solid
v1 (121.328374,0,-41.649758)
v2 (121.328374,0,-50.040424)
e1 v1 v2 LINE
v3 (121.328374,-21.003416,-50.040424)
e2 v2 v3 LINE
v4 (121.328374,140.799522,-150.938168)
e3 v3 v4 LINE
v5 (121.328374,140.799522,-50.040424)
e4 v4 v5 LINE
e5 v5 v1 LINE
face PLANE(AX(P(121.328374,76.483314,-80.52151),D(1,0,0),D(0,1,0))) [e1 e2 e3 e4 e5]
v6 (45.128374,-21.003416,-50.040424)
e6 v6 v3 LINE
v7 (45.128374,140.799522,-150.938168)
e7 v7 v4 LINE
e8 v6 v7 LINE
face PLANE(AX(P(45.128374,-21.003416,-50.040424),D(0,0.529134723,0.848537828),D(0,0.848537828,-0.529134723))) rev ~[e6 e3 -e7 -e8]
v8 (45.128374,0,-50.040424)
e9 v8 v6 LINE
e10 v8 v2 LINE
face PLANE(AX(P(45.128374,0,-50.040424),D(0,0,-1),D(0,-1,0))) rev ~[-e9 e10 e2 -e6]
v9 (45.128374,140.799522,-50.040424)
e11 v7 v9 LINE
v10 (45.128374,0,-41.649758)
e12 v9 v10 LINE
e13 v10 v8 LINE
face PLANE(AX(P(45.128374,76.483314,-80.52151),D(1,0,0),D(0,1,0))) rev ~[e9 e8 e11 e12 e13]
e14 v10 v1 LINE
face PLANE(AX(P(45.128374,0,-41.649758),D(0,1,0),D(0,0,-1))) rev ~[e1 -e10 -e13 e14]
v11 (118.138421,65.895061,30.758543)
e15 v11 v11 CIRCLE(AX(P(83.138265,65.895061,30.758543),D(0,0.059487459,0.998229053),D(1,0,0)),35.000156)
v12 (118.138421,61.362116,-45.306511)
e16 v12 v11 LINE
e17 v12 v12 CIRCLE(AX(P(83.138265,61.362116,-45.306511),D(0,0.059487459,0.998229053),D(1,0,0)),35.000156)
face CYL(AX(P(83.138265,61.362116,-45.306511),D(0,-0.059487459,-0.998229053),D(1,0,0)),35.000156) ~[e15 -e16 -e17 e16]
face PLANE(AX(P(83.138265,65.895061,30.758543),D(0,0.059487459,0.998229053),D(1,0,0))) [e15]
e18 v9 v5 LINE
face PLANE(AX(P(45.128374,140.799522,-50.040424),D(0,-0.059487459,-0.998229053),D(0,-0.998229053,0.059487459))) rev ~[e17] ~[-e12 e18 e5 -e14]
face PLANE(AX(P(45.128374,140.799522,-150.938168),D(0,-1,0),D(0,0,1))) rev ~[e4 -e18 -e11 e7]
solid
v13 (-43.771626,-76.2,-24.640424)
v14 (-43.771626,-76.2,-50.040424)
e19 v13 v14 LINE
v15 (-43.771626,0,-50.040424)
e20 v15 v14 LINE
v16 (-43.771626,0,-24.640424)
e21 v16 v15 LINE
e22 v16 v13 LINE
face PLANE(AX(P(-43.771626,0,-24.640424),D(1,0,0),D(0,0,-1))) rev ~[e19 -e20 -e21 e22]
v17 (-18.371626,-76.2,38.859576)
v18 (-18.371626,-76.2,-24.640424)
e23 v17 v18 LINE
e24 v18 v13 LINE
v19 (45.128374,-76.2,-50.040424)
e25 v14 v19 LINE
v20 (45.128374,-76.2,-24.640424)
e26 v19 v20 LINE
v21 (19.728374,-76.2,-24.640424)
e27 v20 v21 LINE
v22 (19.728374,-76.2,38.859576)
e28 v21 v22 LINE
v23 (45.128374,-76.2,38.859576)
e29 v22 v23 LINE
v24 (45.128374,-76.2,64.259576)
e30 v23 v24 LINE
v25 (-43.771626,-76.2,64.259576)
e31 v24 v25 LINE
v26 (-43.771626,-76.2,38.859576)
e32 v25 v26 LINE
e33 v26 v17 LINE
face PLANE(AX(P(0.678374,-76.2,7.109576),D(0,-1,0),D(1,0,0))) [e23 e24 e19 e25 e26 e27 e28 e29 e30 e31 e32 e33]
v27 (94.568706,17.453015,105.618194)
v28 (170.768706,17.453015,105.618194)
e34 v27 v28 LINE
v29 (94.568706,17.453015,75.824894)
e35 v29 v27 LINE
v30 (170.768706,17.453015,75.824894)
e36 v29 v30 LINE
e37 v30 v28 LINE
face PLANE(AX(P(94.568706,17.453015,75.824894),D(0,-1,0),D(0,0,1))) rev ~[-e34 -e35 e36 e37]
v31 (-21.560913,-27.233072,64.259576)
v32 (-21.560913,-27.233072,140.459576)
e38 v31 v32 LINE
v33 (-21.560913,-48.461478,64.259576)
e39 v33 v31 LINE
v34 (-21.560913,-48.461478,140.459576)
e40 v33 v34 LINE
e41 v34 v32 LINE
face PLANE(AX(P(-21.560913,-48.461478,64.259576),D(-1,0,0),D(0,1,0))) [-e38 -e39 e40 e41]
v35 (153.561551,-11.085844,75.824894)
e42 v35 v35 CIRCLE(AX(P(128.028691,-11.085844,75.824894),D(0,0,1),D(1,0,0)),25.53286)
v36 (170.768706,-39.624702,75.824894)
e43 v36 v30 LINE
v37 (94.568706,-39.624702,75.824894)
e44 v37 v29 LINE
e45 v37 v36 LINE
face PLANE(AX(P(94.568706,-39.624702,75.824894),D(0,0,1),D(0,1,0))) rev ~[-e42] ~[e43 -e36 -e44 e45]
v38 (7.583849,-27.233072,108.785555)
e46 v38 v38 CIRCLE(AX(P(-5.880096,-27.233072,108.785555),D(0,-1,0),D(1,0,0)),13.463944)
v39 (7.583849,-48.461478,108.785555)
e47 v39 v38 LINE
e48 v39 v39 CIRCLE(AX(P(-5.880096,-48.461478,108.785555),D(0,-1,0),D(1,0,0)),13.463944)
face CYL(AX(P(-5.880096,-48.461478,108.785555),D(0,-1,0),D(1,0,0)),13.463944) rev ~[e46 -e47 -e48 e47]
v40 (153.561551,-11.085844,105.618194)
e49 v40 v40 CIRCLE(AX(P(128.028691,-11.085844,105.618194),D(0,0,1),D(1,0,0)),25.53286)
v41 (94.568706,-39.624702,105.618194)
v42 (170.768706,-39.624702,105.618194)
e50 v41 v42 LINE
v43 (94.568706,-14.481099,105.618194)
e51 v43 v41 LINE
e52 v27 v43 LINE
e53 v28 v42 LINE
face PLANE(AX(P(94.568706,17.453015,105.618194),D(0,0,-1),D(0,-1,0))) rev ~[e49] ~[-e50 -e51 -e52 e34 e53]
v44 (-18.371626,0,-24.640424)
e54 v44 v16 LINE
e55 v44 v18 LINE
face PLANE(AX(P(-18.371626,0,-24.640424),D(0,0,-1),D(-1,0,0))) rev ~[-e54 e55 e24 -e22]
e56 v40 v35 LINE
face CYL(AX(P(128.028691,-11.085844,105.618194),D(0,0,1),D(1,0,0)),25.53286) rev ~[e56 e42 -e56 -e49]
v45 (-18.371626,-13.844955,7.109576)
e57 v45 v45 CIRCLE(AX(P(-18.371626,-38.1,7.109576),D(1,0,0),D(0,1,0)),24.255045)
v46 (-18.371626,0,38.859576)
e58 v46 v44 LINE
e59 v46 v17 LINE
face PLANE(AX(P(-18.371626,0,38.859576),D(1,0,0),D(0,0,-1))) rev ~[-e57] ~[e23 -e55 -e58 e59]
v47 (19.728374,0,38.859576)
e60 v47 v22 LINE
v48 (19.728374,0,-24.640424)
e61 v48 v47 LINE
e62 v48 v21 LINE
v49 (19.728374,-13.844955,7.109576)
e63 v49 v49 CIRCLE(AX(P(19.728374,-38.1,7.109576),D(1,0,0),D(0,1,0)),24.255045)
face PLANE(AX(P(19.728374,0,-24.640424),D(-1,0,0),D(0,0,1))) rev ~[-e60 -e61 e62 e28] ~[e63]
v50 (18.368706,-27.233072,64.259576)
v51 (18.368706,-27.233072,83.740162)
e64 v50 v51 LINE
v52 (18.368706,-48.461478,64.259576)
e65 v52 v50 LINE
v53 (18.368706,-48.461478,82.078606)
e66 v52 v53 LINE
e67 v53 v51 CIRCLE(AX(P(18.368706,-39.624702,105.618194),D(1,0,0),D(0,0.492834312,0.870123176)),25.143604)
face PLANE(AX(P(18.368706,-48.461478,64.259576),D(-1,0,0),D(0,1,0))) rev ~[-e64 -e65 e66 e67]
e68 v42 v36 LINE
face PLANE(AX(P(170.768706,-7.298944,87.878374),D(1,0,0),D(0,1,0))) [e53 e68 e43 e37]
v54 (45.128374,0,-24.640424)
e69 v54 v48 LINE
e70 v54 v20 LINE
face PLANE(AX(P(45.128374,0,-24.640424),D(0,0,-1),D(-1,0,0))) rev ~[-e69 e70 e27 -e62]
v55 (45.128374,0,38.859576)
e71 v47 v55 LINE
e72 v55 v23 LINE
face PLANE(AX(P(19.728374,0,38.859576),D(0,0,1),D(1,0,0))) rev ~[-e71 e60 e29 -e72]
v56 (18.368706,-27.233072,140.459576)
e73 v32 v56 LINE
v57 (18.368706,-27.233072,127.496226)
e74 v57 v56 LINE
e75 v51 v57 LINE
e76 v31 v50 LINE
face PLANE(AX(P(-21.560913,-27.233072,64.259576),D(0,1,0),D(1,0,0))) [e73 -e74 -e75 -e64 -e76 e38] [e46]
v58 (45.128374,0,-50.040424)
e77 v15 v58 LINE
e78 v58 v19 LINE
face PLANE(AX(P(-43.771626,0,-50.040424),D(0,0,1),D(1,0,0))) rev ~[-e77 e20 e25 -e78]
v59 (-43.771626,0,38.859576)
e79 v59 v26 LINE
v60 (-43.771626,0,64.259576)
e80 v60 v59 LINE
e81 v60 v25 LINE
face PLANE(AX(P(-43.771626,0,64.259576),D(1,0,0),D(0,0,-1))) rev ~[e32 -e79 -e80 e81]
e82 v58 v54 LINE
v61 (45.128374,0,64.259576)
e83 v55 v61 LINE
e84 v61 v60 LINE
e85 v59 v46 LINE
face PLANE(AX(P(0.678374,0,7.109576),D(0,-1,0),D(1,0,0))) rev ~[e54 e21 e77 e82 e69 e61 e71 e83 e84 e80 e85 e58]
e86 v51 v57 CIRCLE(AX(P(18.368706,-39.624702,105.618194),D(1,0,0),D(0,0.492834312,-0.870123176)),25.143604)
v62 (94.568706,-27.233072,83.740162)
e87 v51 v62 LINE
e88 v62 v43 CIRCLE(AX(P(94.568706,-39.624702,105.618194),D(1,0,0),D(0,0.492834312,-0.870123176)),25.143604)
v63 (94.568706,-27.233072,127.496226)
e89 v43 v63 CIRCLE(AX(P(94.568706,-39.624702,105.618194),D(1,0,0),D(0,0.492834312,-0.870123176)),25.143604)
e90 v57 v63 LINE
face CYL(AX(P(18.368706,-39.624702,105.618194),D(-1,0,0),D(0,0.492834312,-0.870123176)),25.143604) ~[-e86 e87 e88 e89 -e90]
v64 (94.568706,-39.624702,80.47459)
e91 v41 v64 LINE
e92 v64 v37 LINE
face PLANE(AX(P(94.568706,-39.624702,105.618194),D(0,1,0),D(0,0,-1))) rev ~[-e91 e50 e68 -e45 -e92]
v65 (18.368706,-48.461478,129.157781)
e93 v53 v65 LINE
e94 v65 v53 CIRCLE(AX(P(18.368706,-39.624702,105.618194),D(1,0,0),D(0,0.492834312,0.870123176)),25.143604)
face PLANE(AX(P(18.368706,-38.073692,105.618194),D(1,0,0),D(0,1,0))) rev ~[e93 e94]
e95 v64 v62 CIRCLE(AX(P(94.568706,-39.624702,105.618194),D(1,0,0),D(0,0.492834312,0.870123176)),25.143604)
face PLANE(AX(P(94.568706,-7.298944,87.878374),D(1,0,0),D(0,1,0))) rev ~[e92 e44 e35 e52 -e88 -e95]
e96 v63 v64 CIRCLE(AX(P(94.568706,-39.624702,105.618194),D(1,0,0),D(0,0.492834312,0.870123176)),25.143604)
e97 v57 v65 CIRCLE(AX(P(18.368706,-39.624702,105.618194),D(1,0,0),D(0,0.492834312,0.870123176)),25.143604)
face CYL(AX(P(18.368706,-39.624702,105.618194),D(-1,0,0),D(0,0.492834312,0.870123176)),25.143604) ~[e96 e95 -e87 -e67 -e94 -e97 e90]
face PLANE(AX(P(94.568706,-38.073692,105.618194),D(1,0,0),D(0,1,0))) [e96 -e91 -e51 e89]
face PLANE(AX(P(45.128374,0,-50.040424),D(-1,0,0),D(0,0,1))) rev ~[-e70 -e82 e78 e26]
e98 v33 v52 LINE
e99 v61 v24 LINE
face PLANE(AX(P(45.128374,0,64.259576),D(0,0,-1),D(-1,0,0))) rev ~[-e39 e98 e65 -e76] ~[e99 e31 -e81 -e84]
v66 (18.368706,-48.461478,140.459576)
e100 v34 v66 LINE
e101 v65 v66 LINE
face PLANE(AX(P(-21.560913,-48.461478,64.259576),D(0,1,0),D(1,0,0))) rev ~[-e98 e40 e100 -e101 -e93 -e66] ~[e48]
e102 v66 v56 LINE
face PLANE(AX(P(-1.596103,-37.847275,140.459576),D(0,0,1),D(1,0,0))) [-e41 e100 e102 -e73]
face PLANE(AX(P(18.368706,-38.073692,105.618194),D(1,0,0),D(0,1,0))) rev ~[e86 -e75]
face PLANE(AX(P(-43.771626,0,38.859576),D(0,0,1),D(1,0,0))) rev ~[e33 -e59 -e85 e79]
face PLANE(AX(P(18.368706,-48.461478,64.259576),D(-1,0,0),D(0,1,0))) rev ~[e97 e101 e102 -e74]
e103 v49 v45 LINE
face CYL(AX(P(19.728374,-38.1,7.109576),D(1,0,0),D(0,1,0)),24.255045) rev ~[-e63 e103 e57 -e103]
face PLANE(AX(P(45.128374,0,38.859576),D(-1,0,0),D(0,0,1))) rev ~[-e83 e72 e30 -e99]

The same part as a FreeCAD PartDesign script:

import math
import FreeCAD as App
import Part
import Sketcher
from FreeCAD import Vector
Q = App.Units.Quantity


def add_polygon(sketch, points):
    """Adds a closed chain of lines whose ends are joined by coincident constraints."""
    first, n = sketch.GeometryCount, len(points)
    for a, b in zip(points, points[1:] + points[:1]):
        sketch.addGeometry(Part.LineSegment(App.Vector(*a, 0), App.Vector(*b, 0)), False)
    for i in range(n):
        sketch.addConstraint(Sketcher.Constraint("Coincident", first + i, 2, first + (i + 1) % n, 1))

doc = App.newDocument("Part")
body = doc.addObject("PartDesign::Body", "Body")

# Sketch on XZ plane
sketch1 = body.newObject("Sketcher::SketchObject", "Sketch")
sketch1.AttachmentSupport = (doc.getObject("XZ_Plane"), [""])
sketch1.MapMode = "FlatFace"
add_polygon(sketch1, [(-43.771626, -24.640424), (-43.771626, -50.040424), (45.128374, -50.040424), (45.128374, -24.640424), (19.728374, -24.640424), (19.728374, 38.859576), (45.128374, 38.859576), (45.128374, 64.259576), (-43.771626, 64.259576), (-43.771626, 38.859576), (-18.371626, 38.859576), (-18.371626, -24.640424)])  # lines 0-11
sketch1.addConstraint([
    Sketcher.Constraint("Vertical", 0),
    Sketcher.Constraint("Horizontal", 1),
    Sketcher.Constraint("Vertical", 2),
    Sketcher.Constraint("Horizontal", 3),
    Sketcher.Constraint("Vertical", 4),
    Sketcher.Constraint("Horizontal", 5),
    Sketcher.Constraint("Vertical", 6),
    Sketcher.Constraint("Horizontal", 7),
    Sketcher.Constraint("Vertical", 8),
    Sketcher.Constraint("Horizontal", 9),
    Sketcher.Constraint("Vertical", 10),
    Sketcher.Constraint("Horizontal", 11),
    Sketcher.Constraint("Horizontal", 5, 2, 8, 2),
    Sketcher.Constraint("Horizontal", 3, 2, 10, 2),
    Sketcher.Constraint("Vertical", 2, 2, 5, 2),
    Sketcher.Constraint("Vertical", 0, 2, 7, 2),
    Sketcher.Constraint("Equal", 5, 9),
    Sketcher.Constraint("Equal", 11, 0),
    Sketcher.Constraint("Equal", 2, 6),
    Sketcher.Constraint("DistanceX", 3, 2, 3, 1, Q("1 in")),
    Sketcher.Constraint("DistanceX", 1, 1, 1, 2, Q("3.5 in")),
    Sketcher.Constraint("DistanceY", 4, 1, 4, 2, Q("2.5 in")),
    Sketcher.Constraint("DistanceX", 0, 2, -1, 1, 43.771626),
    Sketcher.Constraint("DistanceY", 0, 2, -1, 1, 50.040424),
])
pad1 = body.newObject("PartDesign::Pad", "Pad")
pad1.Profile = sketch1
pad1.Length = Q("3 in")

# Sketch on YZ plane
sketch2 = body.newObject("Sketcher::SketchObject", "Sketch001")
sketch2.AttachmentSupport = (doc.getObject("YZ_Plane"), [""])
sketch2.MapMode = "FlatFace"
sketch2.AttachmentOffset = App.Placement(Vector(0, 0, 19.728374), App.Rotation())
sketch2.addGeometry(Part.Circle(Vector(-38.1, 7.109576, 0), Vector(0, 0, 1), 24.255045), False)
sketch2.addConstraint([
    Sketcher.Constraint("DistanceX", 0, 3, -1, 1, Q("1.5 in")),
    Sketcher.Constraint("Diameter", 0, 48.510089),
    Sketcher.Constraint("DistanceY", -1, 1, 0, 3, 7.109576),
])
pocket1 = body.newObject("PartDesign::Pocket", "Pocket")
pocket1.Profile = sketch2
pocket1.Type = "ThroughAll"

# Sketch on XY plane
sketch3 = body.newObject("Sketcher::SketchObject", "Sketch002")
sketch3.AttachmentSupport = (doc.getObject("XY_Plane"), [""])
sketch3.MapMode = "FlatFace"
sketch3.AttachmentOffset = App.Placement(Vector(0, 0, 64.259576), App.Rotation())
add_polygon(sketch3, [(-21.560913, -27.233072), (-21.560913, -48.461478), (18.368706, -48.461478), (18.368706, -27.233072)])  # lines 0-3
sketch3.addConstraint([
    Sketcher.Constraint("Vertical", 0),
    Sketcher.Constraint("Horizontal", 1),
    Sketcher.Constraint("Vertical", 2),
    Sketcher.Constraint("Horizontal", 3),
    Sketcher.Constraint("DistanceX", 1, 1, 1, 2, 39.929619),
    Sketcher.Constraint("DistanceY", 0, 2, 0, 1, 21.228407),
    Sketcher.Constraint("DistanceY", 0, 2, -1, 1, 48.461478),
    Sketcher.Constraint("DistanceX", 0, 2, -1, 1, 21.560913),
])
pad2 = body.newObject("PartDesign::Pad", "Pad001")
pad2.Profile = sketch3
pad2.Length = Q("3 in")

# Sketch on XZ plane
sketch4 = body.newObject("Sketcher::SketchObject", "Sketch003")
sketch4.AttachmentSupport = (doc.getObject("XZ_Plane"), [""])
sketch4.MapMode = "FlatFace"
sketch4.AttachmentOffset = App.Placement(Vector(0, 0, 48.461478), App.Rotation())
sketch4.addGeometry(Part.Circle(Vector(-5.880096, 108.785555, 0), Vector(0, 0, 1), 13.463944), False)
sketch4.addConstraint([
    Sketcher.Constraint("Diameter", 0, 26.927888),
    Sketcher.Constraint("DistanceX", 0, 3, -1, 1, Q("0.2314998 in")),
    Sketcher.Constraint("DistanceY", -1, 1, 0, 3, 108.785555),
])
pocket2 = body.newObject("PartDesign::Pocket", "Pocket001")
pocket2.Profile = sketch4
pocket2.Type = "ThroughAll"

# Sketch on YZ plane
sketch5 = body.newObject("Sketcher::SketchObject", "Sketch004")
sketch5.AttachmentSupport = (doc.getObject("YZ_Plane"), [""])
sketch5.MapMode = "FlatFace"
sketch5.AttachmentOffset = App.Placement(Vector(0, 0, 18.368706), App.Rotation())
sketch5.addGeometry([
    Part.ArcOfCircle(Part.Circle(Vector(-39.624702, 105.618194, 0), Vector(0, 0, 1), 25.143604), math.radians(60.472956), math.radians(299.527044)),
    Part.ArcOfCircle(Part.Circle(Vector(-39.624702, 105.618194, 0), Vector(0, 0, 1), 25.143604), math.radians(-60.472956), math.radians(60.472956)),
], False)
sketch5.addConstraint([
    Sketcher.Constraint("Tangent", 0, 1, 1, 2),
    Sketcher.Constraint("Coincident", 1, 1, 0, 2),
    Sketcher.Constraint("Vertical", 0, 1, 1, 1),
    Sketcher.Constraint("Radius", 0, 25.143604),
    Sketcher.Constraint("DistanceX", 0, 1, -1, 1, 27.233072),
    Sketcher.Constraint("DistanceY", -1, 1, 1, 1, 83.740162),
    Sketcher.Constraint("DistanceX", 1, 3, 0, 1, 12.391631),
])
pad3 = body.newObject("PartDesign::Pad", "Pad002")
pad3.Profile = sketch5
pad3.Length = Q("3 in")

# Sketch on YZ plane
sketch6 = body.newObject("Sketcher::SketchObject", "Sketch005")
sketch6.AttachmentSupport = (doc.getObject("YZ_Plane"), [""])
sketch6.MapMode = "FlatFace"
sketch6.AttachmentOffset = App.Placement(Vector(0, 0, 94.568706), App.Rotation())
add_polygon(sketch6, [(17.453015, 105.618194), (-39.624702, 105.618194), (-39.624702, 75.824894), (17.453015, 75.824894)])  # lines 0-3
sketch6.addConstraint([
    Sketcher.Constraint("Horizontal", 0),
    Sketcher.Constraint("Vertical", 1),
    Sketcher.Constraint("Horizontal", 2),
    Sketcher.Constraint("Vertical", 3),
    Sketcher.Constraint("DistanceY", 1, 2, 1, 1, 29.7933),
    Sketcher.Constraint("DistanceX", 0, 2, 0, 1, 57.077717),
    Sketcher.Constraint("DistanceX", 0, 2, -1, 1, 39.624702),
    Sketcher.Constraint("DistanceY", -1, 1, 0, 2, 105.618194),
])
pad4 = body.newObject("PartDesign::Pad", "Pad003")
pad4.Profile = sketch6
pad4.Length = Q("3 in")

# Sketch on XY plane
sketch7 = body.newObject("Sketcher::SketchObject", "Sketch006")
sketch7.AttachmentSupport = (doc.getObject("XY_Plane"), [""])
sketch7.MapMode = "FlatFace"
sketch7.AttachmentOffset = App.Placement(Vector(0, 0, 105.618194), App.Rotation())
sketch7.addGeometry(Part.Circle(Vector(128.028691, -11.085844, 0), Vector(0, 0, 1), 25.53286), False)
sketch7.addConstraint([
    Sketcher.Constraint("Diameter", 0, 51.06572),
    Sketcher.Constraint("DistanceX", -1, 1, 0, 3, 128.028691),
    Sketcher.Constraint("DistanceY", 0, 3, -1, 1, 11.085844),
])
pocket3 = body.newObject("PartDesign::Pocket", "Pocket002")
pocket3.Profile = sketch7
pocket3.Type = "ThroughAll"
body2 = doc.addObject("PartDesign::Body", "Body001")

# Sketch on YZ plane
sketch8 = body2.newObject("Sketcher::SketchObject", "Sketch007")
sketch8.AttachmentSupport = (doc.getObject("YZ_Plane001"), [""])
sketch8.MapMode = "FlatFace"
sketch8.AttachmentOffset = App.Placement(Vector(0, 0, 45.128374), App.Rotation())
add_polygon(sketch8, [(0, -50.040424), (-21.003416, -50.040424), (140.799522, -150.938168), (140.799522, -50.040424), (0, -41.649758)])  # lines 0-4
sketch8.addConstraint([
    Sketcher.Constraint("Horizontal", 0),
    Sketcher.Constraint("Vertical", 2),
    Sketcher.Constraint("Vertical", 4),
    Sketcher.Constraint("PointOnObject", 3, 2, -2),
    Sketcher.Constraint("Horizontal", 0, 2, 2, 2),
    Sketcher.Constraint("DistanceX", 0, 2, 0, 1, 21.003416),
    Sketcher.Constraint("DistanceY", 2, 1, 2, 2, 100.897745),
    Sketcher.Constraint("DistanceY", 4, 2, 4, 1, 8.390665),
    Sketcher.Constraint("DistanceY", 1, 2, -1, 1, 150.938168),
    Sketcher.Constraint("DistanceX", 0, 2, 1, 2, 161.802938),
])
pad5 = body2.newObject("PartDesign::Pad", "Pad004")
pad5.Profile = sketch8
pad5.Length = Q("3 in")

# Sketch on an angled plane
sketch9 = body2.newObject("Sketcher::SketchObject", "Sketch008")
sketch9.Placement = App.Placement(Vector(0, -2.473251, -41.50237), App.Rotation(Vector(1, 0, 0), Vector(0, 0.998229053, -0.059487459), Vector(0, 0.059487459, 0.998229053), "ZXY"))
sketch9.addGeometry(Part.Circle(Vector(83.138265, 63.948616, 0), Vector(0, 0, 1), 35.000156), False)
sketch9.addConstraint([
    Sketcher.Constraint("Diameter", 0, 70.000312),
    Sketcher.Constraint("DistanceX", -1, 1, 0, 3, 83.138265),
    Sketcher.Constraint("DistanceY", -1, 1, 0, 3, 63.948616),
])
pad6 = body2.newObject("PartDesign::Pad", "Pad005")
pad6.Profile = sketch9
pad6.Length = Q("3 in")

doc.recompute()
